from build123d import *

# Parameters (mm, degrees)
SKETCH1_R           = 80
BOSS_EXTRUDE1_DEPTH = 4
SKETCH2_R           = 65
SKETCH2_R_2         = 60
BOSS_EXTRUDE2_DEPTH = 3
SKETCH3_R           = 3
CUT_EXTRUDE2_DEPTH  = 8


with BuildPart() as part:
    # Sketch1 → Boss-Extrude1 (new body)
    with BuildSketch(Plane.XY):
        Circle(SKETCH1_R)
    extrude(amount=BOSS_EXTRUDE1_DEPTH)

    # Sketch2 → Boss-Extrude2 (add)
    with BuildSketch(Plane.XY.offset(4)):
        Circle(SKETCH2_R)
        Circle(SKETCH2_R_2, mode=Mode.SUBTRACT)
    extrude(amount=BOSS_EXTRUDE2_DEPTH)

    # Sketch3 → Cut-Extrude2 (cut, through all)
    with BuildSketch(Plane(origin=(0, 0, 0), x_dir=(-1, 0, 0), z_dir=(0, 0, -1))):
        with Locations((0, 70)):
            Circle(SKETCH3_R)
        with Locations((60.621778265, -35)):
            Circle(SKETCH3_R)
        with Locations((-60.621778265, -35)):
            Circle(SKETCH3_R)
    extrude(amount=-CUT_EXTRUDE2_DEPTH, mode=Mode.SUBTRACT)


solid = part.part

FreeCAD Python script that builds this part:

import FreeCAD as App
import Part
import Sketcher
Q = App.Units.Quantity

doc = App.newDocument("Part")
params = doc.addObject("Spreadsheet::Sheet", "Params")
for row, (alias, value) in enumerate([
    ("sketch1_diameter", "160 mm"),
    ("pad1_length", "4 mm"),
    ("sketch2_diameter", "130 mm"),
    ("sketch2_diameter2", "120 mm"),
    ("pad2_length", "3 mm"),
    ("sketch3_diameter", "6 mm"),
], start=1):
    params.set(f"A{row}", alias)
    params.set(f"B{row}", "=" + value)
    params.setAlias(f"B{row}", alias)

body = doc.addObject("PartDesign::Body", "Body")

# Sketch on XY plane
sketch1 = doc.addObject("Sketcher::SketchObject", "Sketch")
body.addObject(sketch1)
sketch1.AttachmentSupport = (doc.XY_Plane, [""])
sketch1.MapMode = "FlatFace"
sketch1.addGeometry(Part.Circle(App.Vector(0, 0, 0), App.Vector(0, 0, 1), 80), False)
sketch1.addConstraint([
    Sketcher.Constraint("Coincident", 0, 3, -1, 1),
    Sketcher.Constraint("Diameter", 0, Q("160 mm")),
])
sketch1.setExpression("Constraints[1]", "Params.sketch1_diameter")
pad1 = doc.addObject("PartDesign::Pad", "Pad")
body.addObject(pad1)
pad1.Profile = sketch1
pad1.setExpression("Length", "Params.pad1_length")

# Sketch on XY plane
sketch2 = doc.addObject("Sketcher::SketchObject", "Sketch001")
body.addObject(sketch2)
sketch2.AttachmentSupport = (doc.XY_Plane, [""])
sketch2.MapMode = "FlatFace"
sketch2.AttachmentOffset = App.Placement(App.Vector(0, 0, 4), App.Rotation())
sketch2.addGeometry([
    Part.Circle(App.Vector(0, 0, 0), App.Vector(0, 0, 1), 65),
    Part.Circle(App.Vector(0, 0, 0), App.Vector(0, 0, 1), 60),
], False)
sketch2.addConstraint([
    Sketcher.Constraint("Coincident", 0, 3, -1, 1),
    Sketcher.Constraint("Coincident", 1, 3, -1, 1),
    Sketcher.Constraint("Diameter", 0, Q("130 mm")),
    Sketcher.Constraint("Diameter", 1, Q("120 mm")),
])
sketch2.setExpression("Constraints[2]", "Params.sketch2_diameter")
sketch2.setExpression("Constraints[3]", "Params.sketch2_diameter2")
pad2 = doc.addObject("PartDesign::Pad", "Pad001")
body.addObject(pad2)
pad2.Profile = sketch2
pad2.setExpression("Length", "Params.pad2_length")

# Sketch on XY plane
sketch3 = doc.addObject("Sketcher::SketchObject", "Sketch002")
body.addObject(sketch3)
sketch3.AttachmentSupport = (doc.XY_Plane, [""])
sketch3.MapMode = "FlatFace"
sketch3.addGeometry([
    Part.Circle(App.Vector(0, 70, 0), App.Vector(0, 0, 1), 3),
    Part.Circle(App.Vector(-60.6, -35, 0), App.Vector(0, 0, 1), 3),
    Part.Circle(App.Vector(60.6, -35, 0), App.Vector(0, 0, 1), 3),
], False)
sketch3.addConstraint([
    Sketcher.Constraint("Equal", 0, 1),
    Sketcher.Constraint("Equal", 1, 2),
    Sketcher.Constraint("Symmetric", 1, 3, 2, 3, -2),
    Sketcher.Constraint("PointOnObject", 0, 3, -2),
    Sketcher.Constraint("Diameter", 0, Q("6 mm")),
    Sketcher.Constraint("DistanceY", -1, 1, 0, 3, Q("70 mm")),
    Sketcher.Constraint("DistanceY", 1, 3, -1, 1, Q("35 mm")),
    Sketcher.Constraint("DistanceX", 1, 3, -1, 1, Q("60.621778 mm")),
])
sketch3.setExpression("Constraints[4]", "Params.sketch3_diameter")
pocket1 = doc.addObject("PartDesign::Pocket", "Pocket")
body.addObject(pocket1)
pocket1.Profile = sketch3
pocket1.Type = "ThroughAll"
pocket1.Reversed = True

doc.recompute()
